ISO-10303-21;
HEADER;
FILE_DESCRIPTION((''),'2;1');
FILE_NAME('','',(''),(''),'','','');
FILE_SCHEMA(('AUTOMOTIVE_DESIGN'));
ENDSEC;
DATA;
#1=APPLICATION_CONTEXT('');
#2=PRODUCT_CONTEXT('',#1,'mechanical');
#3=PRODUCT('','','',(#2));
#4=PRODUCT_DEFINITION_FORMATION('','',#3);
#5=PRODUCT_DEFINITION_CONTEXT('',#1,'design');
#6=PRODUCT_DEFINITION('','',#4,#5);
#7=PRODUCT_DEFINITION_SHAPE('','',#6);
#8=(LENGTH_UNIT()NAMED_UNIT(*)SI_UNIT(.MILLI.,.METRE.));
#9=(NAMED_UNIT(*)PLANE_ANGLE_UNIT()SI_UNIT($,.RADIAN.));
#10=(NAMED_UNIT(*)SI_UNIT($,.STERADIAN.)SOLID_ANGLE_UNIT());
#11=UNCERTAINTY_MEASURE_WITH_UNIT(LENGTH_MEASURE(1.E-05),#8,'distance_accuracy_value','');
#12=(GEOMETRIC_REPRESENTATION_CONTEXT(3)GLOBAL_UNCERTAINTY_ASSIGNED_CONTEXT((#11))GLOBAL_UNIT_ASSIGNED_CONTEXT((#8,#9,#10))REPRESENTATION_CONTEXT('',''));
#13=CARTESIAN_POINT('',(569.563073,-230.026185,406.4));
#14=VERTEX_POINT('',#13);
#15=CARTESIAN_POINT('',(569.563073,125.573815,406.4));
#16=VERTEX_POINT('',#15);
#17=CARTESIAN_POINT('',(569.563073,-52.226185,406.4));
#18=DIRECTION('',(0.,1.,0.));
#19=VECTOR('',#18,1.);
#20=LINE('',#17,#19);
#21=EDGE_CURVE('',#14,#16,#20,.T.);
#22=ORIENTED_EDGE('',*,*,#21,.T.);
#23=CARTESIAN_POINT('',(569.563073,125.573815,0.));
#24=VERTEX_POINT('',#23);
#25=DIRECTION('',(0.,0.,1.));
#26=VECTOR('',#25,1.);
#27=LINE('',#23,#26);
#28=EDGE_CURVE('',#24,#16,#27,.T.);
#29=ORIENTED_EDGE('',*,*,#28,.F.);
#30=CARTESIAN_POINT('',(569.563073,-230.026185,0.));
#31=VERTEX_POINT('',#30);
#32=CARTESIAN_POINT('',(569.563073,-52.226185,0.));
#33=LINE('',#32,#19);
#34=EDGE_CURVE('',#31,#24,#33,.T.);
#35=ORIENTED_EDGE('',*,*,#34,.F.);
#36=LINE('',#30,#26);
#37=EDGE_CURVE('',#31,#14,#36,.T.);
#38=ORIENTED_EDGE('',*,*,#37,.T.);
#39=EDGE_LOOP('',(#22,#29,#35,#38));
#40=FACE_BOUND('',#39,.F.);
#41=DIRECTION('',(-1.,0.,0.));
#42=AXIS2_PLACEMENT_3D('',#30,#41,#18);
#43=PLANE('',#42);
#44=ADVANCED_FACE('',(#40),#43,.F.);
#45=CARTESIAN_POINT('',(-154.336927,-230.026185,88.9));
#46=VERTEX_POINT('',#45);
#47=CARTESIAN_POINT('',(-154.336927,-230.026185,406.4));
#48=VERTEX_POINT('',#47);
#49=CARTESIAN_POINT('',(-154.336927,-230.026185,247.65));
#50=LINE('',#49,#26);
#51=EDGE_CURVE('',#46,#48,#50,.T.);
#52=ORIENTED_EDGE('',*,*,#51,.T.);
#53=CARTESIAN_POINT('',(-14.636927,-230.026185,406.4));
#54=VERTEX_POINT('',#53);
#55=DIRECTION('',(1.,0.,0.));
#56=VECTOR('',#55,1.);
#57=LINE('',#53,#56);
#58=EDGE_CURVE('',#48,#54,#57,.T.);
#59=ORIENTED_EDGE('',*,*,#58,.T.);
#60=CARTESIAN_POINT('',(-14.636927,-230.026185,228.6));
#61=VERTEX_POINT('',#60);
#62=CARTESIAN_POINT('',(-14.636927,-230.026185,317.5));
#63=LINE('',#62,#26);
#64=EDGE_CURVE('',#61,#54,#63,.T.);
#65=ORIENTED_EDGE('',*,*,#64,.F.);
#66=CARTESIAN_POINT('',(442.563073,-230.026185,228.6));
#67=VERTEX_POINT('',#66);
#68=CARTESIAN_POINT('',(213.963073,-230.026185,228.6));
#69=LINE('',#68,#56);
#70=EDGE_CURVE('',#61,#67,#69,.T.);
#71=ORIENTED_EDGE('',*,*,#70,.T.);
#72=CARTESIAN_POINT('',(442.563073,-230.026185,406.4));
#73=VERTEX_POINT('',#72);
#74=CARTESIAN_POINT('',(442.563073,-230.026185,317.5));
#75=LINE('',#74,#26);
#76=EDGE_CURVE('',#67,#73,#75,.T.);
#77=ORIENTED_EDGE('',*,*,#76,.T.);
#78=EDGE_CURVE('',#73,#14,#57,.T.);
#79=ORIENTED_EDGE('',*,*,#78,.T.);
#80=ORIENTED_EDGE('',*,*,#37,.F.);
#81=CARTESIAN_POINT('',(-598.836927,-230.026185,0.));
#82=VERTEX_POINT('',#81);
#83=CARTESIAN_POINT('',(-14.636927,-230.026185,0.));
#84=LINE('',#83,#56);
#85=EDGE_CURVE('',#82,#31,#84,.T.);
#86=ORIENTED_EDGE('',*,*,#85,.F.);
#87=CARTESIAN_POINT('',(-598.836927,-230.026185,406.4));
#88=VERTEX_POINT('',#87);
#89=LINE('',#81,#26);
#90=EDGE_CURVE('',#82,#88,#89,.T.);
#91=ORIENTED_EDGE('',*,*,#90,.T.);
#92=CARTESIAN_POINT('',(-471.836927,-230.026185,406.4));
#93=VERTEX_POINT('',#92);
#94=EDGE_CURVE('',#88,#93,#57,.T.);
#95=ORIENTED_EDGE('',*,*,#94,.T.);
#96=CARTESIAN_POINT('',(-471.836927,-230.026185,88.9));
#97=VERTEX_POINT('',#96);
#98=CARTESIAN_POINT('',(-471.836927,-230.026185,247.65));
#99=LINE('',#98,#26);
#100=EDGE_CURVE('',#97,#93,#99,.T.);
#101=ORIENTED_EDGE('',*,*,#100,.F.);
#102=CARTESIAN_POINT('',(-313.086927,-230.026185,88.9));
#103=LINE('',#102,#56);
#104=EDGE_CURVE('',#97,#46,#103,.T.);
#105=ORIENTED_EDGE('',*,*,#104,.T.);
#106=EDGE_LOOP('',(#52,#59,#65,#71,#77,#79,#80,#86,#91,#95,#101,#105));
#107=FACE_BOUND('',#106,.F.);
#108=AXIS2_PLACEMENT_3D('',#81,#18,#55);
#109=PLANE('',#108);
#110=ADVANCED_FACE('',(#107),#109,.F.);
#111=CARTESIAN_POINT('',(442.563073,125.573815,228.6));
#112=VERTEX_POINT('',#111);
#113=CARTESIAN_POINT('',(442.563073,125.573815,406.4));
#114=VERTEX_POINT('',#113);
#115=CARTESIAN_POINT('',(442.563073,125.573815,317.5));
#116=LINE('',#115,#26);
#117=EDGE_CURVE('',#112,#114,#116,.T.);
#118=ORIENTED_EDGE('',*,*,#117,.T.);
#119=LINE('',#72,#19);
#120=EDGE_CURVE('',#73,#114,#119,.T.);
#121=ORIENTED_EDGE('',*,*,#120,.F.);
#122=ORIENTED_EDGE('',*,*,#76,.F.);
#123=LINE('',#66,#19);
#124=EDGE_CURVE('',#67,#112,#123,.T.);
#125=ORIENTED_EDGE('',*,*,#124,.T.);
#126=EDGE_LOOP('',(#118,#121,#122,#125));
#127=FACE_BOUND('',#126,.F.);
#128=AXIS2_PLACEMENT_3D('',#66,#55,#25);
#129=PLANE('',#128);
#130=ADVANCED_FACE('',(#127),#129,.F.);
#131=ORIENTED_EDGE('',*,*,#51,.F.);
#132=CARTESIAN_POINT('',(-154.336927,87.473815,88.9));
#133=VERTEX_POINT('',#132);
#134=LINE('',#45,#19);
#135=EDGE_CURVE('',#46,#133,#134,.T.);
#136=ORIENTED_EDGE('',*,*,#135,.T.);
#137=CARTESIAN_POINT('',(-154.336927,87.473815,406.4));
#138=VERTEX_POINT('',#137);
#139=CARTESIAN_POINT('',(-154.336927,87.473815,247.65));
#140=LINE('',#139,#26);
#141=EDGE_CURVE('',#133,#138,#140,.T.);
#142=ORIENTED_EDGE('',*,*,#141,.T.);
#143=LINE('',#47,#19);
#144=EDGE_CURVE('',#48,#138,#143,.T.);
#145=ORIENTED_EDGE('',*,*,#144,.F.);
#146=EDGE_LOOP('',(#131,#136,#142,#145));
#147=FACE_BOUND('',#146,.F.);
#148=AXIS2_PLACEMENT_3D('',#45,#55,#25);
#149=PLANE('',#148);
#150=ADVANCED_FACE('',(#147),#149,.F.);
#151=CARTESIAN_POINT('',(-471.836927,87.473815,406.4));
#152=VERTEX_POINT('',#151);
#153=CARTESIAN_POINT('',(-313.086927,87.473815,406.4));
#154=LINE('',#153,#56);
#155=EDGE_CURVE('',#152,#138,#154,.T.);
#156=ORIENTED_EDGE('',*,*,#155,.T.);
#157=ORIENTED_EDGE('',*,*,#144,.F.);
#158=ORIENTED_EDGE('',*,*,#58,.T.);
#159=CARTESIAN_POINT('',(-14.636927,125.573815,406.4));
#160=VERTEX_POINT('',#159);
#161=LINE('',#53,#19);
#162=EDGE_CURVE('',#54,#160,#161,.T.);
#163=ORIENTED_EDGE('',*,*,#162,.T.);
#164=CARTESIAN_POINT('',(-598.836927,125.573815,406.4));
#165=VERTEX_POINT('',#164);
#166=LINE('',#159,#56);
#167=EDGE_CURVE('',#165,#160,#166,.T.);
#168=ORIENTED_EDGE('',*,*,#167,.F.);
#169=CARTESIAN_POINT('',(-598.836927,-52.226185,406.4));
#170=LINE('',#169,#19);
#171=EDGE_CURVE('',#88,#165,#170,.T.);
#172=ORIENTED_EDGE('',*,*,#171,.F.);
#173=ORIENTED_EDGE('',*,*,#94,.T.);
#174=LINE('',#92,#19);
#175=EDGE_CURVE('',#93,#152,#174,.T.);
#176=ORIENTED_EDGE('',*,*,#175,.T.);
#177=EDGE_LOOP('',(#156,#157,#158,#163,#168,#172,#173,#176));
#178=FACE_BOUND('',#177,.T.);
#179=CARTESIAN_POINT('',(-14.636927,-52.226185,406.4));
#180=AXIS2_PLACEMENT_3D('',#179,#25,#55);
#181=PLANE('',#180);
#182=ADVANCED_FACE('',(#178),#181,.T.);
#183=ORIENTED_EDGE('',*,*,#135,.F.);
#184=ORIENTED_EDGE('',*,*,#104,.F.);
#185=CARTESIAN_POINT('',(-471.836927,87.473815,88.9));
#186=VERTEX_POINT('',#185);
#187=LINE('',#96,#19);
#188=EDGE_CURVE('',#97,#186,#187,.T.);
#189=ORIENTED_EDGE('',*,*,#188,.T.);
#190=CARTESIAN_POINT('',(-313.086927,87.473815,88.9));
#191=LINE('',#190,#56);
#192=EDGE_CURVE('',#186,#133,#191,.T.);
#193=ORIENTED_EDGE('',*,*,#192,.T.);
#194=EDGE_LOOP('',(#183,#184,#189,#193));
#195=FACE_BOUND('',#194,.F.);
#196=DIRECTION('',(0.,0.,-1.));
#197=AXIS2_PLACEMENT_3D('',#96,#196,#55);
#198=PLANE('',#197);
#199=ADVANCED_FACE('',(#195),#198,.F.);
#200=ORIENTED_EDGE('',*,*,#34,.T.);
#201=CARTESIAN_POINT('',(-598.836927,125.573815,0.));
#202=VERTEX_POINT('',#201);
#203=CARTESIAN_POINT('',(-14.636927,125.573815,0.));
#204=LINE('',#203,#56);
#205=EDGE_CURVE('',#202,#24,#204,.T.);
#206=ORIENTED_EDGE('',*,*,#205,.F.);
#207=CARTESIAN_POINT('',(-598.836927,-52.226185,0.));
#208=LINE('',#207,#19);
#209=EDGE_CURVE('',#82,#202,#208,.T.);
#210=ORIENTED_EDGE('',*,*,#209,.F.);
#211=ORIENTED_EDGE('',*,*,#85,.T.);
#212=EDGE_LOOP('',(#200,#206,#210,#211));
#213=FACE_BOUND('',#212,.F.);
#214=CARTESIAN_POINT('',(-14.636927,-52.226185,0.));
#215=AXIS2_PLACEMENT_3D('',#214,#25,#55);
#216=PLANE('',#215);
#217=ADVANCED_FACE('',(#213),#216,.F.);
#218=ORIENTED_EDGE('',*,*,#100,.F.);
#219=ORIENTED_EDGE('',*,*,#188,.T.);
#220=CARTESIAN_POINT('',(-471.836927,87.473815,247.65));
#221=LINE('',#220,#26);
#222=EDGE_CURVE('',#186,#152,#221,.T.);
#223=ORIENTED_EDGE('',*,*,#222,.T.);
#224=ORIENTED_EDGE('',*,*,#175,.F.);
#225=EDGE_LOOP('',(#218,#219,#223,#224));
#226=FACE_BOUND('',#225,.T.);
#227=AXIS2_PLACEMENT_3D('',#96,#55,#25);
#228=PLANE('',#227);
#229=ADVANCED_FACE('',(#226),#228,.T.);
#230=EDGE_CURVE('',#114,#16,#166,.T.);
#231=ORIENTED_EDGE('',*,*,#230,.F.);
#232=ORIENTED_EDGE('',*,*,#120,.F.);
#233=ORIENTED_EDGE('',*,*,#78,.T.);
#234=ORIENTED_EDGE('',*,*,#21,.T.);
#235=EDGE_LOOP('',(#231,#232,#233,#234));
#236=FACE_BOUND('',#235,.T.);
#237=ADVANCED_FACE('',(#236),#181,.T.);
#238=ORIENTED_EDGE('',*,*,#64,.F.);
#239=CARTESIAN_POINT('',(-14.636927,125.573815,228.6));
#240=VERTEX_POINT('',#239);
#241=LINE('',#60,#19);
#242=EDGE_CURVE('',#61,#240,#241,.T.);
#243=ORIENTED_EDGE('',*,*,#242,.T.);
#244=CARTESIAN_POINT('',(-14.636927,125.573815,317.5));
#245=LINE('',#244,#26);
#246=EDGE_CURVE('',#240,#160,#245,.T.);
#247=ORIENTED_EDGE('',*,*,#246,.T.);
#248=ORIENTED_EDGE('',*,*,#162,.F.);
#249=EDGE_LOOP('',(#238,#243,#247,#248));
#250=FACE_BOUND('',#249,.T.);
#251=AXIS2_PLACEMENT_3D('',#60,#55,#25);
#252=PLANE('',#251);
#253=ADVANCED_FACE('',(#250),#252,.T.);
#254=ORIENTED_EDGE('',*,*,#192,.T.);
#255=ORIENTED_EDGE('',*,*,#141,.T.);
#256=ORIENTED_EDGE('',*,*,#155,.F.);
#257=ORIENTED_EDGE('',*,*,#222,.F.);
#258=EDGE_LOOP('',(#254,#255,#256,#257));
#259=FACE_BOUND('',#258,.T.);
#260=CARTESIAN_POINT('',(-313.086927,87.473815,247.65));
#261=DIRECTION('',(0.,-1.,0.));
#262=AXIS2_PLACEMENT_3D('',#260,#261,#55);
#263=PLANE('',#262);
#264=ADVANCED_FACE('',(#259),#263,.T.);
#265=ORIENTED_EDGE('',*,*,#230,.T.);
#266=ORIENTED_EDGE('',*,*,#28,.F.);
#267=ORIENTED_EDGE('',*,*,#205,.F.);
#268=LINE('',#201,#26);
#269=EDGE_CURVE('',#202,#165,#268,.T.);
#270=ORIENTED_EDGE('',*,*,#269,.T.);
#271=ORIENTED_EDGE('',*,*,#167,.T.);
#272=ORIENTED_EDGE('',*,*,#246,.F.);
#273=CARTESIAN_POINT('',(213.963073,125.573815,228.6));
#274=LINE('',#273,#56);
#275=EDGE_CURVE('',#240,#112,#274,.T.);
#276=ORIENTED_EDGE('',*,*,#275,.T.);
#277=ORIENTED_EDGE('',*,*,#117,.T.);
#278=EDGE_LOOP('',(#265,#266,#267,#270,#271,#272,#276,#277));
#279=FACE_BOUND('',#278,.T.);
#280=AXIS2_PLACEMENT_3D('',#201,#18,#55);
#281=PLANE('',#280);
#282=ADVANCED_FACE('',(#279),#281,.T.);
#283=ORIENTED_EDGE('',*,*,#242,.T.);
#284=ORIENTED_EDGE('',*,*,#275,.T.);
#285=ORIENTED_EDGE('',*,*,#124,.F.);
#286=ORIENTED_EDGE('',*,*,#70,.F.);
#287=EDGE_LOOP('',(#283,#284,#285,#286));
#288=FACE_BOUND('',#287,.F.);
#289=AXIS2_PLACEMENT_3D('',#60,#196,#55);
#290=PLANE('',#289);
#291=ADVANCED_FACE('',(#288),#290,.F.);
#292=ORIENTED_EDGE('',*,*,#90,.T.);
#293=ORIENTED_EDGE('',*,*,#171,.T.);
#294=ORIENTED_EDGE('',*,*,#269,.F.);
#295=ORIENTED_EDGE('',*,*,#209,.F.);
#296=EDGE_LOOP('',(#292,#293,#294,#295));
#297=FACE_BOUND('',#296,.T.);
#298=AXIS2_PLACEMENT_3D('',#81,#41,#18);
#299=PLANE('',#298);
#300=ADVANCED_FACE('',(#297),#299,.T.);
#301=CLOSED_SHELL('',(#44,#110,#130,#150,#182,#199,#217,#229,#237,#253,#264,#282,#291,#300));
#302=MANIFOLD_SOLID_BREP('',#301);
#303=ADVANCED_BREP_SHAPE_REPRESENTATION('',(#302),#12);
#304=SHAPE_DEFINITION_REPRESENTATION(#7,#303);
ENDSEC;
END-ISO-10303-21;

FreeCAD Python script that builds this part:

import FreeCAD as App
import Part
import Sketcher
Q = App.Units.Quantity

doc = App.newDocument("Part")
body = doc.addObject("PartDesign::Body", "Body")

# Sketch on XY plane
sketch1 = doc.addObject("Sketcher::SketchObject", "Sketch")
body.addObject(sketch1)
sketch1.AttachmentSupport = (doc.XY_Plane, [""])
sketch1.MapMode = "FlatFace"
sketch1.addGeometry(Part.LineSegment(App.Vector(-598.836927, 125.573815, 0), App.Vector(-598.836927, -230.026185, 0)), False)
sketch1.addGeometry(Part.LineSegment(App.Vector(-598.836927, -230.026185, 0), App.Vector(569.563073, -230.026185, 0)), False)
sketch1.addGeometry(Part.LineSegment(App.Vector(569.563073, -230.026185, 0), App.Vector(569.563073, 125.573815, 0)), False)
sketch1.addGeometry(Part.LineSegment(App.Vector(569.563073, 125.573815, 0), App.Vector(-598.836927, 125.573815, 0)), False)
sketch1.addConstraint(Sketcher.Constraint("Coincident", 0, 2, 1, 1))
sketch1.addConstraint(Sketcher.Constraint("Coincident", 1, 2, 2, 1))
sketch1.addConstraint(Sketcher.Constraint("Coincident", 2, 2, 3, 1))
sketch1.addConstraint(Sketcher.Constraint("Coincident", 3, 2, 0, 1))
sketch1.addConstraint(Sketcher.Constraint("Vertical", 0))
sketch1.addConstraint(Sketcher.Constraint("Horizontal", 1))
sketch1.addConstraint(Sketcher.Constraint("Vertical", 2))
sketch1.addConstraint(Sketcher.Constraint("Horizontal", 3))
sketch1.addConstraint(Sketcher.Constraint("DistanceX", 1, 1, 1, 2, Q("46 in")))
sketch1.addConstraint(Sketcher.Constraint("DistanceY", 0, 2, 0, 1, Q("14 in")))
sketch1.addConstraint(Sketcher.Constraint("DistanceX", 0, 2, -1, 1, Q("598.836927 mm")))
sketch1.addConstraint(Sketcher.Constraint("DistanceY", 0, 2, -1, 1, Q("230.026185 mm")))
pad1 = doc.addObject("PartDesign::Pad", "Pad")
body.addObject(pad1)
pad1.Profile = sketch1
pad1.Length = Q("16 in")

# Sketch on XZ plane
sketch2 = doc.addObject("Sketcher::SketchObject", "Sketch001")
body.addObject(sketch2)
sketch2.AttachmentSupport = (doc.XZ_Plane, [""])
sketch2.MapMode = "FlatFace"
sketch2.AttachmentOffset = App.Placement(App.Vector(0, 0, 230.026185), App.Rotation())
sketch2.addGeometry(Part.LineSegment(App.Vector(-14.636927, 406.4, 0), App.Vector(-14.636927, 228.6, 0)), False)
sketch2.addGeometry(Part.LineSegment(App.Vector(-14.636927, 228.6, 0), App.Vector(442.563073, 228.6, 0)), False)
sketch2.addGeometry(Part.LineSegment(App.Vector(442.563073, 228.6, 0), App.Vector(442.563073, 406.4, 0)), False)
sketch2.addGeometry(Part.LineSegment(App.Vector(442.563073, 406.4, 0), App.Vector(-14.636927, 406.4, 0)), False)
sketch2.addConstraint(Sketcher.Constraint("Coincident", 0, 2, 1, 1))
sketch2.addConstraint(Sketcher.Constraint("Coincident", 1, 2, 2, 1))
sketch2.addConstraint(Sketcher.Constraint("Coincident", 2, 2, 3, 1))
sketch2.addConstraint(Sketcher.Constraint("Coincident", 3, 2, 0, 1))
sketch2.addConstraint(Sketcher.Constraint("Vertical", 0))
sketch2.addConstraint(Sketcher.Constraint("Horizontal", 1))
sketch2.addConstraint(Sketcher.Constraint("Vertical", 2))
sketch2.addConstraint(Sketcher.Constraint("Horizontal", 3))
sketch2.addConstraint(Sketcher.Constraint("DistanceX", 1, 1, 1, 2, Q("18 in")))
sketch2.addConstraint(Sketcher.Constraint("DistanceY", 0, 2, 0, 1, Q("7 in")))
sketch2.addConstraint(Sketcher.Constraint("DistanceY", -1, 1, 0, 2, Q("9 in")))
sketch2.addConstraint(Sketcher.Constraint("DistanceX", 0, 2, -1, 1, Q("14.636927 mm")))
pocket1 = doc.addObject("PartDesign::Pocket", "Pocket")
body.addObject(pocket1)
pocket1.Profile = sketch2
pocket1.Length = Q("14 in")

# Sketch on XZ plane
sketch3 = doc.addObject("Sketcher::SketchObject", "Sketch002")
body.addObject(sketch3)
sketch3.AttachmentSupport = (doc.XZ_Plane, [""])
sketch3.MapMode = "FlatFace"
sketch3.AttachmentOffset = App.Placement(App.Vector(0, 0, 230.026185), App.Rotation())
sketch3.addGeometry(Part.LineSegment(App.Vector(-471.836927, 406.4, 0), App.Vector(-471.836927, 88.9, 0)), False)
sketch3.addGeometry(Part.LineSegment(App.Vector(-471.836927, 88.9, 0), App.Vector(-154.336927, 88.9, 0)), False)
sketch3.addGeometry(Part.LineSegment(App.Vector(-154.336927, 88.9, 0), App.Vector(-154.336927, 406.4, 0)), False)
sketch3.addGeometry(Part.LineSegment(App.Vector(-154.336927, 406.4, 0), App.Vector(-471.836927, 406.4, 0)), False)
sketch3.addConstraint(Sketcher.Constraint("Coincident", 0, 2, 1, 1))
sketch3.addConstraint(Sketcher.Constraint("Coincident", 1, 2, 2, 1))
sketch3.addConstraint(Sketcher.Constraint("Coincident", 2, 2, 3, 1))
sketch3.addConstraint(Sketcher.Constraint("Coincident", 3, 2, 0, 1))
sketch3.addConstraint(Sketcher.Constraint("Vertical", 0))
sketch3.addConstraint(Sketcher.Constraint("Horizontal", 1))
sketch3.addConstraint(Sketcher.Constraint("Vertical", 2))
sketch3.addConstraint(Sketcher.Constraint("Horizontal", 3))
sketch3.addConstraint(Sketcher.Constraint("Equal", 3, 0))
sketch3.addConstraint(Sketcher.Constraint("DistanceX", 1, 1, 1, 2, Q("12.5 in")))
sketch3.addConstraint(Sketcher.Constraint("DistanceY", -1, 1, 2, 2, Q("16 in")))
sketch3.addConstraint(Sketcher.Constraint("DistanceX", 0, 2, -1, 1, Q("471.836927 mm")))
pocket2 = doc.addObject("PartDesign::Pocket", "Pocket001")
body.addObject(pocket2)
pocket2.Profile = sketch3
pocket2.Length = Q("12.5 in")

doc.recompute()
